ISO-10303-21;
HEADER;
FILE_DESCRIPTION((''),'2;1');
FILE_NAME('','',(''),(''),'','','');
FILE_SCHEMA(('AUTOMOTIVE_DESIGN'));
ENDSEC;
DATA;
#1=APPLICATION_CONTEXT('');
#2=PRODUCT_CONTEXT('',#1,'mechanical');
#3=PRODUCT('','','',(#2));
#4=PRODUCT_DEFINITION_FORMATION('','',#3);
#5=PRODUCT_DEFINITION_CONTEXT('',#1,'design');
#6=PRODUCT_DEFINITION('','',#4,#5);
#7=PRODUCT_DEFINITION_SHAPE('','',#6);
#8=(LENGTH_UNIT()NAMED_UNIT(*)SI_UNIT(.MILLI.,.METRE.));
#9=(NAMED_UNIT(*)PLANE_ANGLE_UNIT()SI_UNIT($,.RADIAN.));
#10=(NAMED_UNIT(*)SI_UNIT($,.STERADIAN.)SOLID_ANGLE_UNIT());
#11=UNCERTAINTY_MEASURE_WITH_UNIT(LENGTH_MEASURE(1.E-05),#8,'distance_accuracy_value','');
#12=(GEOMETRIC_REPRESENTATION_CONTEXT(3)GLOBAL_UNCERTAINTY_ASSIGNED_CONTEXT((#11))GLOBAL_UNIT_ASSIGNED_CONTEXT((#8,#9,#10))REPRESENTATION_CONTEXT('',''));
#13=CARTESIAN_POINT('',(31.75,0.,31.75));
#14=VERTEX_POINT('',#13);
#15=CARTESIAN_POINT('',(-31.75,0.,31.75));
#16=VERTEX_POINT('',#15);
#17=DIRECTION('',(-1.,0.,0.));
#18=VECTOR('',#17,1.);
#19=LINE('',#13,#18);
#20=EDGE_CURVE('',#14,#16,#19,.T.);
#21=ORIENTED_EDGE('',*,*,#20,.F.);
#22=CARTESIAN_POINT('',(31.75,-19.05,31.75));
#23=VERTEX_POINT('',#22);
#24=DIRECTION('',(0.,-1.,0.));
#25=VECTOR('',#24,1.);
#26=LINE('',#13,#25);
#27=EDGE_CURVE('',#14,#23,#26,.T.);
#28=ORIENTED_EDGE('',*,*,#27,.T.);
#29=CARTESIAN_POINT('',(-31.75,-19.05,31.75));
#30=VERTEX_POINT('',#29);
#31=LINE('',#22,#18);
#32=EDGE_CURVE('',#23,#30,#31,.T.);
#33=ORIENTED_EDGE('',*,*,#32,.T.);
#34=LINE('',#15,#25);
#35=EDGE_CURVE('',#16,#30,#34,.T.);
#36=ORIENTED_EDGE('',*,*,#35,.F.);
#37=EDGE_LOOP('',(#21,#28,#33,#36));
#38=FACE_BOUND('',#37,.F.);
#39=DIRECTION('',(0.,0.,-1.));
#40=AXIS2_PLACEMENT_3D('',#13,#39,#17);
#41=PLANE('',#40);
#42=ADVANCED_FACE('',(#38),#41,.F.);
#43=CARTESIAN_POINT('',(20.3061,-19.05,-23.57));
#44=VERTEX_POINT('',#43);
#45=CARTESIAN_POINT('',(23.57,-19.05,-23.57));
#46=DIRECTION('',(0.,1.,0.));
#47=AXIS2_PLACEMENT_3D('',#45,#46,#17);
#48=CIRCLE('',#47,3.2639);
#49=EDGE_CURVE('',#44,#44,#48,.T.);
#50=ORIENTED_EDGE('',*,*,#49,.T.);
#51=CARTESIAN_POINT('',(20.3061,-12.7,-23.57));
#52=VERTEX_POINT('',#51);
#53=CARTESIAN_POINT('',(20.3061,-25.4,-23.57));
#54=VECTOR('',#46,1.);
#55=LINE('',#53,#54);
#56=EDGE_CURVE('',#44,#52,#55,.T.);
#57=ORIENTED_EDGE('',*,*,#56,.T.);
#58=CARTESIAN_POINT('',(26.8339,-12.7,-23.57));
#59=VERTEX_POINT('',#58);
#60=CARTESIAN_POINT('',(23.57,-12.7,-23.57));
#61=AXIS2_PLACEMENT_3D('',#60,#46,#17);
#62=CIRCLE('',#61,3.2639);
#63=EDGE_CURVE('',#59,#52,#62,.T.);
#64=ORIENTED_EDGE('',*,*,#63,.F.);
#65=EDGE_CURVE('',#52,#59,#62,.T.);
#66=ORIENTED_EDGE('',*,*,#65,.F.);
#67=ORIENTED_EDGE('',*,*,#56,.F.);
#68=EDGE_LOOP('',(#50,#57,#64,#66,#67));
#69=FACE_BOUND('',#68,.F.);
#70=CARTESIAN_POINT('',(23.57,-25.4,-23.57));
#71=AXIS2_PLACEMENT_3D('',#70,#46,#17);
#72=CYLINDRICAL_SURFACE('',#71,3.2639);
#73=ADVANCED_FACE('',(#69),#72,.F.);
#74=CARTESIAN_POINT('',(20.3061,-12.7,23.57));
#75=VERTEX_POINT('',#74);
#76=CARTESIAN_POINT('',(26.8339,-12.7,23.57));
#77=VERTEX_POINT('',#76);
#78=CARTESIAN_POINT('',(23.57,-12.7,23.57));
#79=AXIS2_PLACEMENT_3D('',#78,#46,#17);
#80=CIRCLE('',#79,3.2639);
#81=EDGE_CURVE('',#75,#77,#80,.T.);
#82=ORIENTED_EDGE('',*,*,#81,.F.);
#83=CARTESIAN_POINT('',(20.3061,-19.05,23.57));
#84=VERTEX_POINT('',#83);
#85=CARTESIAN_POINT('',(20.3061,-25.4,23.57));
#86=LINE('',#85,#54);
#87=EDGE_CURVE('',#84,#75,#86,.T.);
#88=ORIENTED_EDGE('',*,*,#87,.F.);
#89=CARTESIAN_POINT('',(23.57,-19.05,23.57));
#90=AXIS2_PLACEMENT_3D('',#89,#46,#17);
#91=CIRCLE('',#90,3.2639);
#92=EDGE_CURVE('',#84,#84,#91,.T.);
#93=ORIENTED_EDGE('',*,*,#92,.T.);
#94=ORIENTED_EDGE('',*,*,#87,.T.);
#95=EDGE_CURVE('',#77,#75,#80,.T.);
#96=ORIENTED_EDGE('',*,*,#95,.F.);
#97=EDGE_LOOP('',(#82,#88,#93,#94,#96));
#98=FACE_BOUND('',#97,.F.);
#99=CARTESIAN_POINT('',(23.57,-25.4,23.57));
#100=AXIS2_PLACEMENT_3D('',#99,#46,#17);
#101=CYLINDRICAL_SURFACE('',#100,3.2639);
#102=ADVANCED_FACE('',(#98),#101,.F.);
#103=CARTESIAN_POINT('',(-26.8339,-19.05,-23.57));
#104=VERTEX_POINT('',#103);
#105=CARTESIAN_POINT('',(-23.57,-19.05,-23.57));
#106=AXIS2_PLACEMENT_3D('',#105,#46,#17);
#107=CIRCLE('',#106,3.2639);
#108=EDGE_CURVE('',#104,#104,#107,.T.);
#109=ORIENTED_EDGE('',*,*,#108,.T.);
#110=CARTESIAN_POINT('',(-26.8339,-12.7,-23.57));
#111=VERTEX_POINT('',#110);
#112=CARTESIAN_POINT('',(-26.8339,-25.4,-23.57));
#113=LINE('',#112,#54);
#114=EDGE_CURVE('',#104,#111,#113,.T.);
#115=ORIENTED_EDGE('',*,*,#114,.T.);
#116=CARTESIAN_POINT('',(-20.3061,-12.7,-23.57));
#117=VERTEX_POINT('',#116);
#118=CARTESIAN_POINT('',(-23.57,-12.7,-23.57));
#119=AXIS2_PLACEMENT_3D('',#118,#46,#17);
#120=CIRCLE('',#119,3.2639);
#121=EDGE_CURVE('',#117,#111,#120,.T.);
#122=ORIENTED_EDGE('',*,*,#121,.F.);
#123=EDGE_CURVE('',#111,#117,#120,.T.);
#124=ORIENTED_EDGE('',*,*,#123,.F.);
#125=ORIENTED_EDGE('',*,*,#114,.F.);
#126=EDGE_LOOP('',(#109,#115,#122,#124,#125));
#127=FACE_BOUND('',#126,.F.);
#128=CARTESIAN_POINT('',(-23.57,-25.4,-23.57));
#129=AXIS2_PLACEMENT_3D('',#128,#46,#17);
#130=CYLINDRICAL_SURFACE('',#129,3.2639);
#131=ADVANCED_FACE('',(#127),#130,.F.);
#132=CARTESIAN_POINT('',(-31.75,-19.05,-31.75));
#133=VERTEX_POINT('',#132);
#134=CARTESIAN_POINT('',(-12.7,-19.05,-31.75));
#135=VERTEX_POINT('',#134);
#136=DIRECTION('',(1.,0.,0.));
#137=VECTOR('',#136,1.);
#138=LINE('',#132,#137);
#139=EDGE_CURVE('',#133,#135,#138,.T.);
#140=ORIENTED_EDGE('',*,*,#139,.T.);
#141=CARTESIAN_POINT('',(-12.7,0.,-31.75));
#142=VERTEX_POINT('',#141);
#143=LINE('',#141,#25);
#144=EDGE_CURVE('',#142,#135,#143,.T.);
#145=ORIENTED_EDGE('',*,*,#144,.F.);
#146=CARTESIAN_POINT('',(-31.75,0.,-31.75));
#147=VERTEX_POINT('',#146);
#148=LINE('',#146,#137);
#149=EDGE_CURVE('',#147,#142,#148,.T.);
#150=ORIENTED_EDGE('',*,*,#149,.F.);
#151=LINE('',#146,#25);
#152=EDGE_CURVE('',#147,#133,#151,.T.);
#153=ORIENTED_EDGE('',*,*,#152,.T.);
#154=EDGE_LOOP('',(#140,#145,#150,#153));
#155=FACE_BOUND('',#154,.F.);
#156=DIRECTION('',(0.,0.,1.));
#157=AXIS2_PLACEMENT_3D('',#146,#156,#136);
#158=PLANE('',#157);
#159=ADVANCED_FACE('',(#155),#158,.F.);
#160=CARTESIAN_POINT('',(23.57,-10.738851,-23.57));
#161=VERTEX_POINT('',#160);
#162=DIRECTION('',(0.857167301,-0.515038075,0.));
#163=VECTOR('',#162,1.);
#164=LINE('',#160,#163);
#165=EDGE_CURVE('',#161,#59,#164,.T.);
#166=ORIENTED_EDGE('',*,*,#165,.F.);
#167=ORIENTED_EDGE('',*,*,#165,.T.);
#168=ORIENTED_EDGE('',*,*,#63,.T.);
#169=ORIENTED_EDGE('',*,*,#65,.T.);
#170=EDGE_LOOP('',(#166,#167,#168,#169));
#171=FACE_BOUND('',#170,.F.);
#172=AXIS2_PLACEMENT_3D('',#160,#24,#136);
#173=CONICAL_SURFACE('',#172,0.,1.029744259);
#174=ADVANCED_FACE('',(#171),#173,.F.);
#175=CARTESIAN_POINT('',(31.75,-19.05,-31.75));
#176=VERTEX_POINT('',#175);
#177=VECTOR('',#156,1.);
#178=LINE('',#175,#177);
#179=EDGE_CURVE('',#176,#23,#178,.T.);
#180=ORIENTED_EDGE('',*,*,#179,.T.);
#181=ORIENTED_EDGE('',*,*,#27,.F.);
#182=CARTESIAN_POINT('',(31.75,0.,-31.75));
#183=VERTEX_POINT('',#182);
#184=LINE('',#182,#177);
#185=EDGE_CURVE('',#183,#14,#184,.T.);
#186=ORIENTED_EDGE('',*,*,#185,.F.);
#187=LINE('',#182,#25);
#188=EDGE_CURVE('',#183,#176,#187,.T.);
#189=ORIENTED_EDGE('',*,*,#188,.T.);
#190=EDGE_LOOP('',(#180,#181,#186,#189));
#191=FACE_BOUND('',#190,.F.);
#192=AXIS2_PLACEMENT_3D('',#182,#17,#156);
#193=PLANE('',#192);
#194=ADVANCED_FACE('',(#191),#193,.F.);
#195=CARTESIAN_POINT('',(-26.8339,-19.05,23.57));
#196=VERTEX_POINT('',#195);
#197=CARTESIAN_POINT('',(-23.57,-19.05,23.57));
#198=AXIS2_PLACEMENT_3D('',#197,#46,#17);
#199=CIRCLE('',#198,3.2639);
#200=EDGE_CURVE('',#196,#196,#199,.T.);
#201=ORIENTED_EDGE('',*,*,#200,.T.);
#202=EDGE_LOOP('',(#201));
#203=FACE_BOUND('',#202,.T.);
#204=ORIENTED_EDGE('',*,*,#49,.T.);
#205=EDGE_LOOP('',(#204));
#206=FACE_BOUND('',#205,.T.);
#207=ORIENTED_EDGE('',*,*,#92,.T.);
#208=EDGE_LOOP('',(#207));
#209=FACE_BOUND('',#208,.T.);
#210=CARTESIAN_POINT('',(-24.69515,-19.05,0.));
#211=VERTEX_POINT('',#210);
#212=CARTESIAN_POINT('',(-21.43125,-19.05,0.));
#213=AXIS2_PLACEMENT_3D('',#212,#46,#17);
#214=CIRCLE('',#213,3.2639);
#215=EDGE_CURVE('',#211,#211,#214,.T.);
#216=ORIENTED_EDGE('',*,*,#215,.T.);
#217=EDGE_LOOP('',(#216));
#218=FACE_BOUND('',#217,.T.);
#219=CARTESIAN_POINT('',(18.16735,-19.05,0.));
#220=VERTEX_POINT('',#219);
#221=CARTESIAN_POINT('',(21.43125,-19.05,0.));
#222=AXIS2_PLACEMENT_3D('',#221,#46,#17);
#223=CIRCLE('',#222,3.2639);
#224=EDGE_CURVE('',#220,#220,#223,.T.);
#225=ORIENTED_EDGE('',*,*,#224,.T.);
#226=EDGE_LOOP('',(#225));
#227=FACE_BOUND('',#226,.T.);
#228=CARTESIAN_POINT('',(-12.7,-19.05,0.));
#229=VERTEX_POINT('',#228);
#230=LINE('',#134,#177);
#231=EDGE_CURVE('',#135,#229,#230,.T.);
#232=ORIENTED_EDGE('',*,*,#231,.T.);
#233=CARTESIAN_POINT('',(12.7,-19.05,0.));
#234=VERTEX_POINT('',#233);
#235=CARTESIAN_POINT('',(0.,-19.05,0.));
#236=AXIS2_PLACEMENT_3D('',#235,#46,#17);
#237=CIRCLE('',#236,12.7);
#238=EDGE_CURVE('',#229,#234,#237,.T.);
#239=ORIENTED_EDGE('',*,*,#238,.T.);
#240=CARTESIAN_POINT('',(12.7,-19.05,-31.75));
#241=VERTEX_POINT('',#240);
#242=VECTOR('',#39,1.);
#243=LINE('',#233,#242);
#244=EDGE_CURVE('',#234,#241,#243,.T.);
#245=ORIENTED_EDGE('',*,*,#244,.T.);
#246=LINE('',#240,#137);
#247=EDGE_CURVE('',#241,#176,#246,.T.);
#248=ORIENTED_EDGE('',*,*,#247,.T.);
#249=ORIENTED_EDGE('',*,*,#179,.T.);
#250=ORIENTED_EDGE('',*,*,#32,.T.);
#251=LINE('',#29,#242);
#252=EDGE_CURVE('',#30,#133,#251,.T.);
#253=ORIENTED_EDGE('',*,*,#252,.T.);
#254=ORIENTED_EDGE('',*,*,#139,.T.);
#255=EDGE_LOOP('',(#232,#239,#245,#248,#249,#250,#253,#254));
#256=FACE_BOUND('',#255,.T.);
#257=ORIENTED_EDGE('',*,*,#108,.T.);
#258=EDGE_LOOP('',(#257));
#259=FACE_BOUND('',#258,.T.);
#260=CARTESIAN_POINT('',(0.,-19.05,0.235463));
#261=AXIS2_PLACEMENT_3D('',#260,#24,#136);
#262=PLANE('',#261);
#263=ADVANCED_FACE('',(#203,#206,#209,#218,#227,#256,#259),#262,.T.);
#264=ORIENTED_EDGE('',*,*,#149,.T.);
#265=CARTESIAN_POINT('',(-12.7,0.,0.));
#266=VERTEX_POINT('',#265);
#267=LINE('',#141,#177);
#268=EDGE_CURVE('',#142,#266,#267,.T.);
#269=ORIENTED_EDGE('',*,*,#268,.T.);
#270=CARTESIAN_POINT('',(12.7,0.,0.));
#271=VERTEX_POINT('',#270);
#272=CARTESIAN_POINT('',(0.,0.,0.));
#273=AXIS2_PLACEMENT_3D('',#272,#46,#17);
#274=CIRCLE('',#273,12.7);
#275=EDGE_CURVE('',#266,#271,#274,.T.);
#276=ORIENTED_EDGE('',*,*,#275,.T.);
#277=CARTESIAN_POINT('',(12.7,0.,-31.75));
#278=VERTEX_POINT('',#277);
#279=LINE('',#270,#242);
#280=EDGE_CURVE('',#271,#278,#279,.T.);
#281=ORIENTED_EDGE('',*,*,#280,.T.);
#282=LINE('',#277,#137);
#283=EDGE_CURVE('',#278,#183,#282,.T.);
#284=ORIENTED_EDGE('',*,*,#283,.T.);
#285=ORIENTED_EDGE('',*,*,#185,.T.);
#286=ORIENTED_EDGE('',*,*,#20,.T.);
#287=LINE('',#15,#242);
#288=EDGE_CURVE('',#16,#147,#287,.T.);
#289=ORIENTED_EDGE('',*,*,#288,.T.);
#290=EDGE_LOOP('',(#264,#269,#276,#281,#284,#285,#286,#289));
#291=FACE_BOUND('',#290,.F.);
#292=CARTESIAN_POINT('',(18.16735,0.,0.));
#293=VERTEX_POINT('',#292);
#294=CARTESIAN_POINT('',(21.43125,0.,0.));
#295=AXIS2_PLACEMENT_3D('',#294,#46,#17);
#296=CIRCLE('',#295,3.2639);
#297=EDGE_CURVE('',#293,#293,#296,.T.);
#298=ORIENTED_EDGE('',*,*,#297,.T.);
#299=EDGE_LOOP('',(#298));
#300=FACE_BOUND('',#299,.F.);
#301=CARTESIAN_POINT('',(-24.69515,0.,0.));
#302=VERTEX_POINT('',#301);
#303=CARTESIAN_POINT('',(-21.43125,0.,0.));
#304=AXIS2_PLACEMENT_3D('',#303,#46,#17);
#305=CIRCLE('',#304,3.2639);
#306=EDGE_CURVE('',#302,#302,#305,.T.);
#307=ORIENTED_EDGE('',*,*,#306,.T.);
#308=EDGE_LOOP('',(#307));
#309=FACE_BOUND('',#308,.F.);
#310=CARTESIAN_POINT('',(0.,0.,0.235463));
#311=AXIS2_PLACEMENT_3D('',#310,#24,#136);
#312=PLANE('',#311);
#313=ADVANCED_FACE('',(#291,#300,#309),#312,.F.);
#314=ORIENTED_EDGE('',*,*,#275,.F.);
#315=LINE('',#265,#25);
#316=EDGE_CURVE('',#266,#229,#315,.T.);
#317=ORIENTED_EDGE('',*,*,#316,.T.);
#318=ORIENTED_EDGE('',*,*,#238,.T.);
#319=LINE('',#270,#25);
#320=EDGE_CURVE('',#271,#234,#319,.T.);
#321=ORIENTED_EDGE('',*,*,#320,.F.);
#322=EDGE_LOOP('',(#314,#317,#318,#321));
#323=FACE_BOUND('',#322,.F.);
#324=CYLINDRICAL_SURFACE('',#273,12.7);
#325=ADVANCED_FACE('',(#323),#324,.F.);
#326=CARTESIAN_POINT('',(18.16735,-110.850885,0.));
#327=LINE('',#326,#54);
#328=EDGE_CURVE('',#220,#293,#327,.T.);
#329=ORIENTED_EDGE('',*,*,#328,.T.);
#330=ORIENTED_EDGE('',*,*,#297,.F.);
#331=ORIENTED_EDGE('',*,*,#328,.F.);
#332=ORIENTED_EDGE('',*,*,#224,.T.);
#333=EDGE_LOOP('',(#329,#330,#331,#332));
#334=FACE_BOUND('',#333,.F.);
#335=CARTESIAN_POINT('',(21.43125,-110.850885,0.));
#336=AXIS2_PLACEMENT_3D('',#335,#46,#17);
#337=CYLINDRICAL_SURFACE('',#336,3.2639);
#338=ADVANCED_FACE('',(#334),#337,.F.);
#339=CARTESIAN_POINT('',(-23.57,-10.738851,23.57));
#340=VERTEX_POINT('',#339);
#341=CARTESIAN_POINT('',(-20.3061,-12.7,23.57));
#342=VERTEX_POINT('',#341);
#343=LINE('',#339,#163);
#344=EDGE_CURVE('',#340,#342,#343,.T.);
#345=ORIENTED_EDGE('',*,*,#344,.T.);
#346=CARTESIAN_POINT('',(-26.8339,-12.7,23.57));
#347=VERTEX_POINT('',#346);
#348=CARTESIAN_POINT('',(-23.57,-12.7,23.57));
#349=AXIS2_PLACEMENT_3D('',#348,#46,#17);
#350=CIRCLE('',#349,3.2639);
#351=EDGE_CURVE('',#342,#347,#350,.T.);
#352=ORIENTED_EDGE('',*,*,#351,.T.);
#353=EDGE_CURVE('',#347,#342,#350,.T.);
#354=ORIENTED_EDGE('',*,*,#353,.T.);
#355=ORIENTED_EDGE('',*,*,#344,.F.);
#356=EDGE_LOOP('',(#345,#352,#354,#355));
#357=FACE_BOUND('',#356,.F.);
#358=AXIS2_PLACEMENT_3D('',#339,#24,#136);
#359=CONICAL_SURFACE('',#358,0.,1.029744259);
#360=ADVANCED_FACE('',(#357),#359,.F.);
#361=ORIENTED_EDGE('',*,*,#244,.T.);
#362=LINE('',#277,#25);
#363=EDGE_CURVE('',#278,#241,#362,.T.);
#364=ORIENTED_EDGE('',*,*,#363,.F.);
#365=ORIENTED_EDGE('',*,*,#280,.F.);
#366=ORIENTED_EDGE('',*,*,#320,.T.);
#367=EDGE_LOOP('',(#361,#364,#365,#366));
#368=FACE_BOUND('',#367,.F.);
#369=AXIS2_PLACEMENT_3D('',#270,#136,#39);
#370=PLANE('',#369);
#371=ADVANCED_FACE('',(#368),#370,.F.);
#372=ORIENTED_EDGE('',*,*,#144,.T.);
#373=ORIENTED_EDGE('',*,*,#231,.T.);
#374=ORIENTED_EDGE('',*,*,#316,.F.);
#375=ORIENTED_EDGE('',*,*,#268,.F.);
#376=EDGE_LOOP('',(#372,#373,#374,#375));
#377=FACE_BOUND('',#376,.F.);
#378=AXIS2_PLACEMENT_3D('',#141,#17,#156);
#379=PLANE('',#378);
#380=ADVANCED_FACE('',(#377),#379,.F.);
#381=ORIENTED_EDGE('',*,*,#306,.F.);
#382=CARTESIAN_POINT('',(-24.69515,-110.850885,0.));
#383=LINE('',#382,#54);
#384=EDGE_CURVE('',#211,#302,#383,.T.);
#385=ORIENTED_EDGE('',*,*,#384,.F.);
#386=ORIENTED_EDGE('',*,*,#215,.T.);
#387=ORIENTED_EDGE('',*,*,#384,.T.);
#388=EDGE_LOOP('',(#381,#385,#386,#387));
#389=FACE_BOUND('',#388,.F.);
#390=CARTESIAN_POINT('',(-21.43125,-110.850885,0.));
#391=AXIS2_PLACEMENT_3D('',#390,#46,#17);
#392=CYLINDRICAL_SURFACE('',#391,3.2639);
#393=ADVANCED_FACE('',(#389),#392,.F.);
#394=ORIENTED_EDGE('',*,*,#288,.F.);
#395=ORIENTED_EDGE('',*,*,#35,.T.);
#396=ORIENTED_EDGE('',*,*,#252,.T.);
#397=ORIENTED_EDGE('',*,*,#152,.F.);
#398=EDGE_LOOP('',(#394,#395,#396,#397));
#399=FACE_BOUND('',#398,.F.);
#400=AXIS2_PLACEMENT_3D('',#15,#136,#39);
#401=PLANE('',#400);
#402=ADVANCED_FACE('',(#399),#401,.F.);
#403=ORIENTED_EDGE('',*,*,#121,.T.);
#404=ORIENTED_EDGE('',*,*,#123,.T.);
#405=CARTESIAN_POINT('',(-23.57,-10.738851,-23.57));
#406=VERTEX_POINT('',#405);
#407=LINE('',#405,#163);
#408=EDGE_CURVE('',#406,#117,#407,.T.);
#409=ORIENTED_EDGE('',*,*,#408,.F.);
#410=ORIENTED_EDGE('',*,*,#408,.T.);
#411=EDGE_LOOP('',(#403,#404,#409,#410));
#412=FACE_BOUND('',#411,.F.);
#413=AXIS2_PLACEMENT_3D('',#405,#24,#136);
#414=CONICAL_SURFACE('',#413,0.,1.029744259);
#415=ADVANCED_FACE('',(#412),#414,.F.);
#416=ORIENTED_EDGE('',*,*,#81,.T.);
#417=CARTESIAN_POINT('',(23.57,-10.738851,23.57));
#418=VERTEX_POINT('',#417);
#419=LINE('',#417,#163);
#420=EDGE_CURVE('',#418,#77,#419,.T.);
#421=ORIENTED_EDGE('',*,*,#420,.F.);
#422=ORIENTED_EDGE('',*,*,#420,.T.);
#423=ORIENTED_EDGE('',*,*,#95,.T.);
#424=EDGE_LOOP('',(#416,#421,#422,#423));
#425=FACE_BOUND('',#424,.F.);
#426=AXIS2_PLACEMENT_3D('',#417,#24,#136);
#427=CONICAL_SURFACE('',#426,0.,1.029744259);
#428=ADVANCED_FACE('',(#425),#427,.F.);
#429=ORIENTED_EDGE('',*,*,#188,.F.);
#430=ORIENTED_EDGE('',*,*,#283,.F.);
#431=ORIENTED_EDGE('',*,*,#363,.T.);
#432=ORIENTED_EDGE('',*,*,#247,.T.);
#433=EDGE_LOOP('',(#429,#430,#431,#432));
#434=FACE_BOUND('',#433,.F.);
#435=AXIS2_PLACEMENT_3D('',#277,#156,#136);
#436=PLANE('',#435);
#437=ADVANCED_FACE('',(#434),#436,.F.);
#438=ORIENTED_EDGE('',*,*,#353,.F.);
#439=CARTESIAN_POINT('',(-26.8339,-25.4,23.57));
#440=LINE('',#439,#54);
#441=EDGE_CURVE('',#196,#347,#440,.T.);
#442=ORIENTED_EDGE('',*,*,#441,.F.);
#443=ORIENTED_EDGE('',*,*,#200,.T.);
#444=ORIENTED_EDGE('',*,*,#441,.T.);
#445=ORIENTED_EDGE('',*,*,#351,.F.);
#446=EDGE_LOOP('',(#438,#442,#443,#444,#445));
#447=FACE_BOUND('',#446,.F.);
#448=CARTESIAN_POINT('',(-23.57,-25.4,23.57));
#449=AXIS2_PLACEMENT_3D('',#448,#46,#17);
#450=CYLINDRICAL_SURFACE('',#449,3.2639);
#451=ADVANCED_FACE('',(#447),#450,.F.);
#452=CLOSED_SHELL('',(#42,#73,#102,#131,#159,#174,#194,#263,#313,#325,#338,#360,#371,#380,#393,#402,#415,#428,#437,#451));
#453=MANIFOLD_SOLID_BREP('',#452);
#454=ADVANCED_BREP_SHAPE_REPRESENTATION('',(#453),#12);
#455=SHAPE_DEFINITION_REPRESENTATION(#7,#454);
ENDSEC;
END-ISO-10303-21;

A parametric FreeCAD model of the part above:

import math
import FreeCAD as App
import Part
import Sketcher
from FreeCAD import Vector
Q = App.Units.Quantity

doc = App.newDocument("Part")
body = doc.addObject("PartDesign::Body", "Body")

sketch1 = body.newObject("Sketcher::SketchObject", "Sketch")
sketch1.AttachmentSupport = (doc.getObject("XZ_Plane"), [""])
sketch1.MapMode = "FlatFace"
sketch1.addGeometry([
    Part.LineSegment(Vector(32, 32, 0), Vector(-32, 32, 0)),
    Part.LineSegment(Vector(-32, 32, 0), Vector(-32, -32, 0)),
    Part.LineSegment(Vector(-32, -32, 0), Vector(-13, -32, 0)),
    Part.LineSegment(Vector(-13, -32, 0), Vector(-13, 0, 0)),
    Part.ArcOfCircle(Part.Circle(Vector(0, 0, 0), Vector(0, 0, 1), 13), math.radians(0), math.radians(180)),
    Part.LineSegment(Vector(13, 0, 0), Vector(13, -32, 0)),
    Part.LineSegment(Vector(13, -32, 0), Vector(32, -32, 0)),
    Part.LineSegment(Vector(32, -32, 0), Vector(32, 32, 0)),
], False)
sketch1.addConstraint([
    Sketcher.Constraint("Coincident", 0, 2, 1, 1),
    Sketcher.Constraint("Coincident", 1, 2, 2, 1),
    Sketcher.Constraint("Coincident", 2, 2, 3, 1),
    Sketcher.Constraint("Tangent", 3, 2, 4, 2),
    Sketcher.Constraint("Tangent", 4, 1, 5, 1),
    Sketcher.Constraint("Coincident", 5, 2, 6, 1),
    Sketcher.Constraint("Coincident", 6, 2, 7, 1),
    Sketcher.Constraint("Coincident", 7, 2, 0, 1),
    Sketcher.Constraint("Horizontal", 0),
    Sketcher.Constraint("Vertical", 1),
    Sketcher.Constraint("Horizontal", 2),
    Sketcher.Constraint("Vertical", 3),
    Sketcher.Constraint("Vertical", 5),
    Sketcher.Constraint("Horizontal", 6),
    Sketcher.Constraint("Vertical", 7),
    Sketcher.Constraint("Coincident", 4, 3, -1, 1),
    Sketcher.Constraint("Symmetric", 0, 2, 6, 2, -1, 1),
    Sketcher.Constraint("Horizontal", 2, 2, 5, 2),
    Sketcher.Constraint("Equal", 0, 1),
    Sketcher.Constraint("Radius", 4, Q("0.5 in")),
    Sketcher.Constraint("DistanceX", 0, 2, 0, 1, Q("2.5 in")),
])
pad1 = body.newObject("PartDesign::Pad", "Pad")
pad1.Profile = sketch1
pad1.Length = Q("0.75 in")

sketch2 = body.newObject("Sketcher::SketchObject", "Sketch001")
sketch2.AttachmentSupport = (doc.getObject("XZ_Plane"), [""])
sketch2.MapMode = "FlatFace"
sketch2.AttachmentOffset = App.Placement(Vector(0, 0, 0.75 * 25.4), App.Rotation())
sketch2.addGeometry([
    Part.Circle(Vector(-23.6, 23.6, 0), Vector(0, 0, 1), 3.3),
    Part.Circle(Vector(-23.6, -23.6, 0), Vector(0, 0, 1), 3.3),
    Part.Circle(Vector(23.6, -23.6, 0), Vector(0, 0, 1), 3.3),
    Part.Circle(Vector(23.6, 23.6, 0), Vector(0, 0, 1), 3.3),
], False)
sketch2.addConstraint([
    Sketcher.Constraint("Equal", 0, 1),
    Sketcher.Constraint("Equal", 1, 2),
    Sketcher.Constraint("Equal", 2, 3),
    Sketcher.Constraint("Symmetric", 0, 3, 2, 3, -1, 1),
    Sketcher.Constraint("Symmetric", 1, 3, 3, 3, -1, 1),
    Sketcher.Constraint("Symmetric", 1, 3, 2, 3, -2),
    Sketcher.Constraint("Diameter", 0, Q("0.257 in")),
    Sketcher.Constraint("DistanceX", 0, 3, -1, 1, Q("23.57 mm")),
    Sketcher.Constraint("DistanceY", -1, 1, 0, 3, Q("23.57 mm")),
])
doc.recompute()
hole = body.newObject("PartDesign::Hole", "Hole")
hole.Profile = sketch2
hole.ThreadType = "None"
hole.Diameter = Q("0.257 in")
hole.DepthType = "Dimension"
hole.Depth = Q("0.25 in")
hole.DrillPoint = "Angled"
hole.DrillPointAngle = 118

sketch3 = body.newObject("Sketcher::SketchObject", "Sketch002")
sketch3.AttachmentSupport = (doc.getObject("XZ_Plane"), [""])
sketch3.MapMode = "FlatFace"
sketch3.AttachmentOffset = App.Placement(Vector(0, 0, 0.75 * 25.4), App.Rotation())
sketch3.addGeometry([
    Part.Circle(Vector(-21.4, 0, 0), Vector(0, 0, 1), 3.3),
    Part.Circle(Vector(21.4, 0, 0), Vector(0, 0, 1), 3.3),
], False)
sketch3.addConstraint([
    Sketcher.Constraint("Equal", 0, 1),
    Sketcher.Constraint("Symmetric", 0, 3, 1, 3, -1, 1),
    Sketcher.Constraint("PointOnObject", 0, 3, -1),
    Sketcher.Constraint("Diameter", 0, Q("0.257 in")),
    Sketcher.Constraint("DistanceX", 0, 3, -1, 1, Q("0.84375 in")),
])
doc.recompute()
hole2 = body.newObject("PartDesign::Hole", "Hole001")
hole2.Profile = sketch3
hole2.ThreadType = "None"
hole2.Diameter = Q("0.257 in")
hole2.DepthType = "ThroughAll"

doc.recompute()
